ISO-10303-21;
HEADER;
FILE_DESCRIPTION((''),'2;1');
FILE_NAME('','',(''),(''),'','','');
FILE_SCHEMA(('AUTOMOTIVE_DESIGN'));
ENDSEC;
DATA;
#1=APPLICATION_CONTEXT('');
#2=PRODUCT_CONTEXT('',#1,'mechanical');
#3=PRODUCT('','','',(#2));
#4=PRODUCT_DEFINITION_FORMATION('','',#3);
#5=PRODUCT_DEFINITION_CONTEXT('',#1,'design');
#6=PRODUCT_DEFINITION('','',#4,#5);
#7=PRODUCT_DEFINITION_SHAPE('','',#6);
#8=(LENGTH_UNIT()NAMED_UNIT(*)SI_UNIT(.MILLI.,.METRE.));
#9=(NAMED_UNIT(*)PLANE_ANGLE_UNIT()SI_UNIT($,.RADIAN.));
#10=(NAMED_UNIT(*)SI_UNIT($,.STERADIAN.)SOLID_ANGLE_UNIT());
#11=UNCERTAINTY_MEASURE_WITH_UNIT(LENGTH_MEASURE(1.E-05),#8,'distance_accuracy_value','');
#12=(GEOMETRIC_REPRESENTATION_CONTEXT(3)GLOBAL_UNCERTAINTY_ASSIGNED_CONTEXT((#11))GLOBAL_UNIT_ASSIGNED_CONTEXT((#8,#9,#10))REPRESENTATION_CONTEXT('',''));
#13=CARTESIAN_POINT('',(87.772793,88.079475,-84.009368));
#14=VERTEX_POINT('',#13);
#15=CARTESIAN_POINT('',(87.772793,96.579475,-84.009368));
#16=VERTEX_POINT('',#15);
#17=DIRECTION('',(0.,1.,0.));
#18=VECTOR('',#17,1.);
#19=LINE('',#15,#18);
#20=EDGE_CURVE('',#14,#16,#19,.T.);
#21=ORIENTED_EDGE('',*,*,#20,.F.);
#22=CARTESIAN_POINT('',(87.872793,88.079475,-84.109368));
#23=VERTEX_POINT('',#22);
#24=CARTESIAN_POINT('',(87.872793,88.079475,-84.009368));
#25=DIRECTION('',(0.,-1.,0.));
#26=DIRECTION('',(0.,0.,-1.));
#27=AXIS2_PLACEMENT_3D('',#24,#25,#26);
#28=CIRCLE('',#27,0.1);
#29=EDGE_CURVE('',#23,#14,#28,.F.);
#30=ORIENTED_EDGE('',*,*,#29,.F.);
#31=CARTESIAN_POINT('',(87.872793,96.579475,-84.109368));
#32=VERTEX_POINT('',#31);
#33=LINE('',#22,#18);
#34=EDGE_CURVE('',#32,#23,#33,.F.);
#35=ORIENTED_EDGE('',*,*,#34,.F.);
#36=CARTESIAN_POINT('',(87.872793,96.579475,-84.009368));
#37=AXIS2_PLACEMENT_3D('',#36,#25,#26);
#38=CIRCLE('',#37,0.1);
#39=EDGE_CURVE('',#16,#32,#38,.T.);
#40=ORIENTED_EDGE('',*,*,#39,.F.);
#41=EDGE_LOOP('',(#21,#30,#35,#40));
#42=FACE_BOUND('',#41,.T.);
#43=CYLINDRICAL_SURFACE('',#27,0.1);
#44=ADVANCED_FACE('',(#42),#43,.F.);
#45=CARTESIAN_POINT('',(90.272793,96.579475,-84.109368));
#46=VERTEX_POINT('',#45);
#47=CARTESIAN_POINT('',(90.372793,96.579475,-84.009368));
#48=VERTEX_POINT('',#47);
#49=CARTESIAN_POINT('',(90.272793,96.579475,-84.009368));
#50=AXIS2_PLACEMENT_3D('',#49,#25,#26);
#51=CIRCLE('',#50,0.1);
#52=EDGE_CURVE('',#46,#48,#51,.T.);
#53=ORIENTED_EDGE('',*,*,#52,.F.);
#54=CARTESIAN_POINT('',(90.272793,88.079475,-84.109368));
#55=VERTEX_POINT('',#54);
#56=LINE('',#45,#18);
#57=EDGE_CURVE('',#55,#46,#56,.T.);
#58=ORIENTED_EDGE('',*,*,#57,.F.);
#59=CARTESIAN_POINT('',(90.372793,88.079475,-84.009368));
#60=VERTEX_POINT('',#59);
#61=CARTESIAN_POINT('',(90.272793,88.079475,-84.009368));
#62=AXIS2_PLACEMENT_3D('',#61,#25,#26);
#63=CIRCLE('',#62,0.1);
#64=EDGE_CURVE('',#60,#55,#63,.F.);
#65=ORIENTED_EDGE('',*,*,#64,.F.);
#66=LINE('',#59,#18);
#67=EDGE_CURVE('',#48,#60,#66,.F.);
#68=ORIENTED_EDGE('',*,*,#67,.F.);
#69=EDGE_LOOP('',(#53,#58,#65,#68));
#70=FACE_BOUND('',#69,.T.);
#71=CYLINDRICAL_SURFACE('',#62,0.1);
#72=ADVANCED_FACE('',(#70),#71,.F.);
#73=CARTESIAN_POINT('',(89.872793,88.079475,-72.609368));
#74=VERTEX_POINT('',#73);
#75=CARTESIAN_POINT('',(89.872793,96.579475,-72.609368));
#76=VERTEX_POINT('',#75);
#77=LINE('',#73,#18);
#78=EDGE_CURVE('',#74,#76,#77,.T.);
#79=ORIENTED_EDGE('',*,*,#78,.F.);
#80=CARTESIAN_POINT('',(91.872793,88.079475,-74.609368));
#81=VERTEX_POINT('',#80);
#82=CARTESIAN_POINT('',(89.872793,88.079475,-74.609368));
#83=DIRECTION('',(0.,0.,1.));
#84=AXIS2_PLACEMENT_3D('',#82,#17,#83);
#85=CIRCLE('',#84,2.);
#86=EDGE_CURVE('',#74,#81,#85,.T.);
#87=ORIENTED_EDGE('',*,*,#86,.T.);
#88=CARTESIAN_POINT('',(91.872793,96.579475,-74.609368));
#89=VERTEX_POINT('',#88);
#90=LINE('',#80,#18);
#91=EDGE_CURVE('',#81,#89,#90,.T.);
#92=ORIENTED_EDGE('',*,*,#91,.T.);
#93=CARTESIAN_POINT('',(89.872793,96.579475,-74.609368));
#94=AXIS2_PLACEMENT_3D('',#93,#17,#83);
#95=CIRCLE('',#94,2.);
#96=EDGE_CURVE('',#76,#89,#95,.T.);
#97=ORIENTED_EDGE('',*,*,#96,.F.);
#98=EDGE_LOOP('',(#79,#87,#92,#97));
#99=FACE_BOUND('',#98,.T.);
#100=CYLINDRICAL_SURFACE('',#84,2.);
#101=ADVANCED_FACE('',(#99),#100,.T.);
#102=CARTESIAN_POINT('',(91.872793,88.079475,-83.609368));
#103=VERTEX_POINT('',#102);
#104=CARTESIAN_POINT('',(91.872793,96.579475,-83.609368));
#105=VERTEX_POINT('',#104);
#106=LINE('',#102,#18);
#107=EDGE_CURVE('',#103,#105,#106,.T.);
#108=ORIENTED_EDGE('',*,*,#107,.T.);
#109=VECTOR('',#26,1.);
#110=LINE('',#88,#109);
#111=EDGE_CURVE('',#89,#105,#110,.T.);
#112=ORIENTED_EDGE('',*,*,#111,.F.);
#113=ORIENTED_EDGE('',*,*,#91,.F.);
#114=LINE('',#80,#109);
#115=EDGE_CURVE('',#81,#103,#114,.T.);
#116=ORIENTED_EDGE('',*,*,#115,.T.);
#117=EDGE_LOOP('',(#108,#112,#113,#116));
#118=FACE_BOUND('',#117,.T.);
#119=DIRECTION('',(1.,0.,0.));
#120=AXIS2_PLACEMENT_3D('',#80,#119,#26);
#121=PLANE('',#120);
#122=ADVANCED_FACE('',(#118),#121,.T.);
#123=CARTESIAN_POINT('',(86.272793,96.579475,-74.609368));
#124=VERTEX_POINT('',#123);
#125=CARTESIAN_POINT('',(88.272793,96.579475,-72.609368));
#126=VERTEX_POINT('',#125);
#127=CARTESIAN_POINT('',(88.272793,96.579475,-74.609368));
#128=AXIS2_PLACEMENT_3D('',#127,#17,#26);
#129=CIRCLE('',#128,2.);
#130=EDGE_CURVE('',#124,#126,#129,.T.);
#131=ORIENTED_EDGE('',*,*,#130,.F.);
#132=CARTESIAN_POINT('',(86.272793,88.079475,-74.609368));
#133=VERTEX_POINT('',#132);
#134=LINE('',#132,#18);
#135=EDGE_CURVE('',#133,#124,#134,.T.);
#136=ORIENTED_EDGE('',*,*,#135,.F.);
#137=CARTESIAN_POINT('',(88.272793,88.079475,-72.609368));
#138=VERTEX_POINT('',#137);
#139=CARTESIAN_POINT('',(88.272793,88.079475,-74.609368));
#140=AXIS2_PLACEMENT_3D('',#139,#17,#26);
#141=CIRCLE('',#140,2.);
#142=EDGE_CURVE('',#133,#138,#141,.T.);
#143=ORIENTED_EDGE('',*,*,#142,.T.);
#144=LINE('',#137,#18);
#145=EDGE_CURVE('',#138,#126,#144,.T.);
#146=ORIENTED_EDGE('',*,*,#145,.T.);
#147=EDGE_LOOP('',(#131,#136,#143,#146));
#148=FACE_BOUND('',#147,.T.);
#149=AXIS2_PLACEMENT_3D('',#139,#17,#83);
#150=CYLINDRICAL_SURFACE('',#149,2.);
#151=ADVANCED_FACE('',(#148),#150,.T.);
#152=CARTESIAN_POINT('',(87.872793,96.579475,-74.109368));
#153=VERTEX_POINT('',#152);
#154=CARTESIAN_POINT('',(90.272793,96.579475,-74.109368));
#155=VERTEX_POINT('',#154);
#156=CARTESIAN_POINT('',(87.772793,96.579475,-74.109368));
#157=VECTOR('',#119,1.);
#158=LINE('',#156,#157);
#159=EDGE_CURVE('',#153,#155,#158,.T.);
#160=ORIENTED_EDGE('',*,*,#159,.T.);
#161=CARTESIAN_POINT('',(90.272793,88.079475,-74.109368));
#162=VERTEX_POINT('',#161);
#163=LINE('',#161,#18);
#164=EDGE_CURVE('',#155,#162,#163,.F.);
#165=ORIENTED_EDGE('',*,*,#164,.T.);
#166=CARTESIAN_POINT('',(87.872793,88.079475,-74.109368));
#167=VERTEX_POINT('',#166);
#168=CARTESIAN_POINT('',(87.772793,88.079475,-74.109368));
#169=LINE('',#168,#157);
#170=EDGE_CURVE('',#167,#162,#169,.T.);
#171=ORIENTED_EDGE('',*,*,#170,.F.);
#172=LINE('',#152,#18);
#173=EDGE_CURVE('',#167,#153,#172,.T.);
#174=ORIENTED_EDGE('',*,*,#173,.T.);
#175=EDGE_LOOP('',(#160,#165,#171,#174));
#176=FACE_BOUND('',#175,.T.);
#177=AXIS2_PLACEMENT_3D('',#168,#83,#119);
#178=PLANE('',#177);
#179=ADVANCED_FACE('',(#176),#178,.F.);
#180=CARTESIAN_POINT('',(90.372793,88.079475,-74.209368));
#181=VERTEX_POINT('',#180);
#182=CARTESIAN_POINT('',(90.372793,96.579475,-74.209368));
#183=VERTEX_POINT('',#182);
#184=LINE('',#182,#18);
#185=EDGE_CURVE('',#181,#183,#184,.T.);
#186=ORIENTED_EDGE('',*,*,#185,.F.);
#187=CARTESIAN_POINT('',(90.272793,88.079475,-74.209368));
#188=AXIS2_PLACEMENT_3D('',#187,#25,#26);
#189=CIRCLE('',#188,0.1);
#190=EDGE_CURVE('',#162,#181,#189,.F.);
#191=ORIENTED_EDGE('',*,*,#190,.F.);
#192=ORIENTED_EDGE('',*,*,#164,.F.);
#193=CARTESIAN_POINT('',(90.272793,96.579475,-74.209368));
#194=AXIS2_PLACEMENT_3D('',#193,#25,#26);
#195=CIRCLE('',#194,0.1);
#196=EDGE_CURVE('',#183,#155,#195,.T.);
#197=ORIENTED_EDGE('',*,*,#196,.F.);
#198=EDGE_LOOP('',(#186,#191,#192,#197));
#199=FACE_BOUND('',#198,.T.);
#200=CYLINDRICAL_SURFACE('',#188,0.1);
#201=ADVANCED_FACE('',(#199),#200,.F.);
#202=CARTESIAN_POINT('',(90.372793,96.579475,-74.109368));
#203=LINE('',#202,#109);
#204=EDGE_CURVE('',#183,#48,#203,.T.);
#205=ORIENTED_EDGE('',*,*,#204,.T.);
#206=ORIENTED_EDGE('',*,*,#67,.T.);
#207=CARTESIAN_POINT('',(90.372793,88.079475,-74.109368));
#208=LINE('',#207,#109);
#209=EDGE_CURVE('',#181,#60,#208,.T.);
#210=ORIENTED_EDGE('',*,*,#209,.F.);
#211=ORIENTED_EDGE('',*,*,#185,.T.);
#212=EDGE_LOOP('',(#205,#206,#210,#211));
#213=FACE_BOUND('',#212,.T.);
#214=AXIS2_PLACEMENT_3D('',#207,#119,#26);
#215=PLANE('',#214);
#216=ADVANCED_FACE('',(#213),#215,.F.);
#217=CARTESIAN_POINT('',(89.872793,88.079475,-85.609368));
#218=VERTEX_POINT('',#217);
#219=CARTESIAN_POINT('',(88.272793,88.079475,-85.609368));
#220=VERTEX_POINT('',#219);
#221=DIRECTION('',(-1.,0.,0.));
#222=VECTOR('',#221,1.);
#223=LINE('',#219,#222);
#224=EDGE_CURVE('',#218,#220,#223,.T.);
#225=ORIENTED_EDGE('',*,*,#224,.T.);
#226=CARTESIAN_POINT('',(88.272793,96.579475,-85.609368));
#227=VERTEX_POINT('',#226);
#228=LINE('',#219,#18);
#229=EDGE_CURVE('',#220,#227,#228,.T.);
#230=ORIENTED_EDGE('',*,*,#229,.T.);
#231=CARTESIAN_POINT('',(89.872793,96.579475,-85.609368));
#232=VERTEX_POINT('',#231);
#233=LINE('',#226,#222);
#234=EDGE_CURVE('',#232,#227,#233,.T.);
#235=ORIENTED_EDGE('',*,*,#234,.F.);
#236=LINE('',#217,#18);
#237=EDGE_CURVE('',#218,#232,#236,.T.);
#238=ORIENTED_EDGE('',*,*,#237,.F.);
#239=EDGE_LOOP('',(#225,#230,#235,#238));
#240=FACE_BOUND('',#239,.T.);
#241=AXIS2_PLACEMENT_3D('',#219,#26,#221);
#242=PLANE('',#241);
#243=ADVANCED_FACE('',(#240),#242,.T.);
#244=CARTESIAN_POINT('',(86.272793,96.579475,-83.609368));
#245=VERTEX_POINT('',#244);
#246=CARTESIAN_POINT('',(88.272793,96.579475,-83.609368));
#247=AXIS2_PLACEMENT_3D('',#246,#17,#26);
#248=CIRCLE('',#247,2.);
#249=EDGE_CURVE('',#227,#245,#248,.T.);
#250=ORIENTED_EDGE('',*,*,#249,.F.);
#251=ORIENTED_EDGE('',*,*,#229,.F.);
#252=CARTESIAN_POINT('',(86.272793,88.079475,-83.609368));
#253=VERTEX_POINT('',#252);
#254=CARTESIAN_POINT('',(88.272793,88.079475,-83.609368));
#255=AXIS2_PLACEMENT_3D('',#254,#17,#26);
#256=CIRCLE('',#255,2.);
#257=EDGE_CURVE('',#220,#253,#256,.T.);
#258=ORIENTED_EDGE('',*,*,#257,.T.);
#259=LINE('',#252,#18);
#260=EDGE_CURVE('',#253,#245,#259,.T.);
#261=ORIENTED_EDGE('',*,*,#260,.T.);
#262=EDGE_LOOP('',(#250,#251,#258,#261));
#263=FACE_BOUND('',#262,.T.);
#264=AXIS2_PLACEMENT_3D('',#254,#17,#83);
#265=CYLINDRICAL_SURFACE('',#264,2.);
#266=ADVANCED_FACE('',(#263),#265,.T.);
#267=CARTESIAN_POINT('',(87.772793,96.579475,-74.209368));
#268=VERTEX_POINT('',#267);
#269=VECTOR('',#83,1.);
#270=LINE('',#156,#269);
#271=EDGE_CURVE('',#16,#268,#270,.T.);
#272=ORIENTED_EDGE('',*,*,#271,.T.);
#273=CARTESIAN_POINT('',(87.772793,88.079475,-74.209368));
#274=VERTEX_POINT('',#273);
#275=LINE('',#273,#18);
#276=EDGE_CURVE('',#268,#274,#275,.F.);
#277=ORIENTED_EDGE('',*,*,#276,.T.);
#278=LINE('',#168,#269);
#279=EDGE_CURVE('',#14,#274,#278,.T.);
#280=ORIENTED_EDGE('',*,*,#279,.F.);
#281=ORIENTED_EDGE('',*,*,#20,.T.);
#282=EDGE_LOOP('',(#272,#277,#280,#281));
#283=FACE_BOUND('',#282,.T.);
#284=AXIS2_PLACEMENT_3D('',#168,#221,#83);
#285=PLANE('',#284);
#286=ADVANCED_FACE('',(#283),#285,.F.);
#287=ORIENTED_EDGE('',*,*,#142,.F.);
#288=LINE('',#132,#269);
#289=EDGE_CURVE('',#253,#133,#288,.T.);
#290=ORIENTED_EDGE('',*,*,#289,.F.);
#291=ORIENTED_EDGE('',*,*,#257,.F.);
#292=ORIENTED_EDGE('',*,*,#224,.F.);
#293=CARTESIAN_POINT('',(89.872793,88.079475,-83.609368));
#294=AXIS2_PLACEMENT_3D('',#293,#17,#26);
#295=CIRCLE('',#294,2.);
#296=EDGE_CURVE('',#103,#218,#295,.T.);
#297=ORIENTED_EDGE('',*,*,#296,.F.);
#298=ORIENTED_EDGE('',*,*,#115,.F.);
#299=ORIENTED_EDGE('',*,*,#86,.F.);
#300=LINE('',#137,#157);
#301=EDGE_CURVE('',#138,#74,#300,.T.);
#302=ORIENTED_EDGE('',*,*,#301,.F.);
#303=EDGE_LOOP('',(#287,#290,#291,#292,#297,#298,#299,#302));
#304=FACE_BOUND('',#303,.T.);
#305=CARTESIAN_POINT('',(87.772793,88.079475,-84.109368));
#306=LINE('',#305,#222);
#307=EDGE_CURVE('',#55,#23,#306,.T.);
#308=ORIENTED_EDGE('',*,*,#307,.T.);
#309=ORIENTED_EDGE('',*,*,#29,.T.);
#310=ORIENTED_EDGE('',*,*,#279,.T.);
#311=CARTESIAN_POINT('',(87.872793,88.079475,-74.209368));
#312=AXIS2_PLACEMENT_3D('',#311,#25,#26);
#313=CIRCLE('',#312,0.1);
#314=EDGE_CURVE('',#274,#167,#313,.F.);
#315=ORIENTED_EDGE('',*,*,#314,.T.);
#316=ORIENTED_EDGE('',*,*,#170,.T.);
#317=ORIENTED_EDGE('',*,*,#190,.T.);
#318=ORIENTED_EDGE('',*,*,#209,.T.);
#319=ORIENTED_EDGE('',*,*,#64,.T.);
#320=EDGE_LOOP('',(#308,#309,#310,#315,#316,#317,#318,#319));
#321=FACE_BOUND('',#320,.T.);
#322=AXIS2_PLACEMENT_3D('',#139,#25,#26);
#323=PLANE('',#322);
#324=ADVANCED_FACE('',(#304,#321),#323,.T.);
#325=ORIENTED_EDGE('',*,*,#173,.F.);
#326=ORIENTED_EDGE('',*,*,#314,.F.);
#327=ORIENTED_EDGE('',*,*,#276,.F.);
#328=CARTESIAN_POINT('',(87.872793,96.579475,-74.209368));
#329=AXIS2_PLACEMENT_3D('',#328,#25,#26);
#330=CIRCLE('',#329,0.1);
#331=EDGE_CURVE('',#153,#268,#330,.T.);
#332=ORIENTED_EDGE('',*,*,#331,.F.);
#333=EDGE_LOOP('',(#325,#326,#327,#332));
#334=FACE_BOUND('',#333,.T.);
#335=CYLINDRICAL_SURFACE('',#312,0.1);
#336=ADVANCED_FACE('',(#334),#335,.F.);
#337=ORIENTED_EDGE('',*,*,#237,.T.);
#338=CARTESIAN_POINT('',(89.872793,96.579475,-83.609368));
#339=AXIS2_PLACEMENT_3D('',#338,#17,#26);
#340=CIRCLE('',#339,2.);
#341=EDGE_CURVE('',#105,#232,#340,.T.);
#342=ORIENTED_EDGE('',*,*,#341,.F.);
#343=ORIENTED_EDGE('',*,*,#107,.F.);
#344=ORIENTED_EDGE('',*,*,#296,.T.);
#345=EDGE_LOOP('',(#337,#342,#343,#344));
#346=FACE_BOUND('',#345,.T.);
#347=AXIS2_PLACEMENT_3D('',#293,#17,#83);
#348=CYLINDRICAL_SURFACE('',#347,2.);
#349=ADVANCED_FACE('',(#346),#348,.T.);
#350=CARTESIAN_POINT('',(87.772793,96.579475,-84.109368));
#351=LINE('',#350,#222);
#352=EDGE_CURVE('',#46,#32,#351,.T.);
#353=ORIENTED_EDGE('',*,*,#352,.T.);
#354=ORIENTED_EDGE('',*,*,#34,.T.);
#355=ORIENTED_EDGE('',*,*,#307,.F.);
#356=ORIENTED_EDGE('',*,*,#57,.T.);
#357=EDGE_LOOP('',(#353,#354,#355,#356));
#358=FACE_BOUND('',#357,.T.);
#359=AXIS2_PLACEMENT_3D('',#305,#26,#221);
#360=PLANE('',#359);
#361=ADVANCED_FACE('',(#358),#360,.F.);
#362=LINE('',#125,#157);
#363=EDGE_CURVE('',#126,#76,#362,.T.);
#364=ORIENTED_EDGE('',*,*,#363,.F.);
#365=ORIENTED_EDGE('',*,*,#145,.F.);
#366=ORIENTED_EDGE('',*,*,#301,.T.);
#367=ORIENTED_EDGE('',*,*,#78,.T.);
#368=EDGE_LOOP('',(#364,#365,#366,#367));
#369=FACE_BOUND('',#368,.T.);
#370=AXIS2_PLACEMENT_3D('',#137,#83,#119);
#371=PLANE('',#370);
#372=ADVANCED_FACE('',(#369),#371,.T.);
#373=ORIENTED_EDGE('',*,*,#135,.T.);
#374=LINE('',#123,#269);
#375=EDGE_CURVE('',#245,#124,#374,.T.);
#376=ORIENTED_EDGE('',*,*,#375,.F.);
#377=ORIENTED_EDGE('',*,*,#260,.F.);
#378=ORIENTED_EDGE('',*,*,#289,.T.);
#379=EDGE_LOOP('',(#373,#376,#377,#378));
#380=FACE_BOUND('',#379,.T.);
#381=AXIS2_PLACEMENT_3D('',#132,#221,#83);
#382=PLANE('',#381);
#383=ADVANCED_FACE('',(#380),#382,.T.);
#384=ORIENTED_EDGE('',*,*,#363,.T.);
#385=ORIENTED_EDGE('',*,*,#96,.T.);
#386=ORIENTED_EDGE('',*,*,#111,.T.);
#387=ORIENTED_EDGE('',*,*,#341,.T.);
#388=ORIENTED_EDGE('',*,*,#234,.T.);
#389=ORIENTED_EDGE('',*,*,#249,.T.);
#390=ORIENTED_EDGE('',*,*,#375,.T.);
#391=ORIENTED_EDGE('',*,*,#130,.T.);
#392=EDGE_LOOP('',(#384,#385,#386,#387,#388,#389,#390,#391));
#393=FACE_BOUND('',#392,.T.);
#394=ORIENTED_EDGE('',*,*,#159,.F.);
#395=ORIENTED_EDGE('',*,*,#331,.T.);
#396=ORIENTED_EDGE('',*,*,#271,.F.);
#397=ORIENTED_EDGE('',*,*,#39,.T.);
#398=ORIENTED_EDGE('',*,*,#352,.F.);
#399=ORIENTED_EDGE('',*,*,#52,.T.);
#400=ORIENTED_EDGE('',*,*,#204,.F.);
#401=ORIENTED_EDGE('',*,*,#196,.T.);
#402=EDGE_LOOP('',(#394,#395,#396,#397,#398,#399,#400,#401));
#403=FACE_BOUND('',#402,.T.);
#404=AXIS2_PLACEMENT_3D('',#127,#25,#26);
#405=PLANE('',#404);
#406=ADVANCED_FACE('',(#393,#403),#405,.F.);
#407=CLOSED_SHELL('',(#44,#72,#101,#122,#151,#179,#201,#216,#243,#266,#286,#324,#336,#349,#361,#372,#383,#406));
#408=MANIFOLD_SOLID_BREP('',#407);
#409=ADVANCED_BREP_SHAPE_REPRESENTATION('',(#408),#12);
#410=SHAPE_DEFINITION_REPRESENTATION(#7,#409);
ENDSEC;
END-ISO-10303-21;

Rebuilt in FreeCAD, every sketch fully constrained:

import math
import FreeCAD as App
import Part
import Sketcher

V = App.Vector
Q = App.Units.Quantity


def edges_at(feature, points):
    """Names of the edges that pass closest to the given points."""
    edges = feature.Shape.Edges
    near = lambda p: min(range(len(edges)), key=lambda i: edges[i].distToShape(Part.Vertex(*p))[0])
    return sorted({f"Edge{near(p) + 1}" for p in points})

doc = App.newDocument("Part")
body = doc.addObject("PartDesign::Body", "Body")

# Sketch on XZ plane
sketch1 = doc.addObject("Sketcher::SketchObject", "Sketch")
body.addObject(sketch1)
sketch1.AttachmentSupport = (doc.XZ_Plane, [""])
sketch1.MapMode = "FlatFace"
sketch1.AttachmentOffset = App.Placement(V(0, 0, -96.579475), App.Rotation())
sketch1.addGeometry([
    Part.LineSegment(V(88.3, -72.6, 0), V(89.9, -72.6, 0)),  # 0
    Part.ArcOfCircle(Part.Circle(V(89.9, -74.6, 0), V(0, 0, 1), 2), math.radians(0), math.radians(90)),  # 1
    Part.LineSegment(V(91.9, -74.6, 0), V(91.9, -83.6, 0)),  # 2
    Part.ArcOfCircle(Part.Circle(V(89.9, -83.6, 0), V(0, 0, 1), 2), math.radians(-90), math.radians(0)),  # 3
    Part.LineSegment(V(89.9, -85.6, 0), V(88.3, -85.6, 0)),  # 4
    Part.ArcOfCircle(Part.Circle(V(88.3, -83.6, 0), V(0, 0, 1), 2), math.radians(-180), math.radians(-90)),  # 5
    Part.LineSegment(V(86.3, -83.6, 0), V(86.3, -74.6, 0)),  # 6
    Part.ArcOfCircle(Part.Circle(V(88.3, -74.6, 0), V(0, 0, 1), 2), math.radians(90), math.radians(180)),  # 7
    Part.LineSegment(V(90.4, -74.1, 0), V(87.8, -74.1, 0)),  # 8
    Part.LineSegment(V(87.8, -74.1, 0), V(87.8, -84.1, 0)),  # 9
    Part.LineSegment(V(87.8, -84.1, 0), V(90.4, -84.1, 0)),  # 10
    Part.LineSegment(V(90.4, -84.1, 0), V(90.4, -74.1, 0)),  # 11
], False)
sketch1.addConstraint([
    Sketcher.Constraint("Tangent", 0, 2, 1, 2),
    Sketcher.Constraint("Tangent", 1, 1, 2, 1),
    Sketcher.Constraint("Tangent", 2, 2, 3, 2),
    Sketcher.Constraint("Tangent", 3, 1, 4, 1),
    Sketcher.Constraint("Tangent", 4, 2, 5, 2),
    Sketcher.Constraint("Tangent", 5, 1, 6, 1),
    Sketcher.Constraint("Tangent", 6, 2, 7, 2),
    Sketcher.Constraint("Tangent", 7, 1, 0, 1),
    Sketcher.Constraint("Coincident", 8, 2, 9, 1),
    Sketcher.Constraint("Coincident", 9, 2, 10, 1),
    Sketcher.Constraint("Coincident", 10, 2, 11, 1),
    Sketcher.Constraint("Coincident", 11, 2, 8, 1),
    Sketcher.Constraint("Horizontal", 0),
    Sketcher.Constraint("Vertical", 2),
    Sketcher.Constraint("Horizontal", 4),
    Sketcher.Constraint("Vertical", 6),
    Sketcher.Constraint("Horizontal", 8),
    Sketcher.Constraint("Vertical", 9),
    Sketcher.Constraint("Horizontal", 10),
    Sketcher.Constraint("Vertical", 11),
    Sketcher.Constraint("Equal", 1, 3),
    Sketcher.Constraint("Equal", 3, 5),
    Sketcher.Constraint("Equal", 5, 7),
    Sketcher.Constraint("Radius", 1, Q("2 mm")),
    Sketcher.Constraint("DistanceY", 2, 2, 2, 1, Q("9 mm")),
    Sketcher.Constraint("DistanceY", 9, 2, 9, 1, Q("10 mm")),
    Sketcher.Constraint("DistanceX", 0, 1, 0, 2, Q("1.6 mm")),
    Sketcher.Constraint("DistanceX", 8, 2, 8, 1, Q("2.6 mm")),
    Sketcher.Constraint("DistanceX", 8, 2, 7, 3, Q("0.5 mm")),
    Sketcher.Constraint("DistanceY", 7, 3, 8, 2, Q("0.5 mm")),
    Sketcher.Constraint("DistanceX", -1, 1, 1, 3, Q("89.872793 mm")),
    Sketcher.Constraint("DistanceY", 1, 3, -1, 1, Q("74.609368 mm")),
])
pad1 = doc.addObject("PartDesign::Pad", "Pad")
body.addObject(pad1)
pad1.Profile = sketch1
pad1.Length = 8.5
doc.recompute()

fillet = doc.addObject("PartDesign::Fillet", "Fillet")
body.addObject(fillet)
fillet.Base = (pad1, edges_at(pad1, [
    (90.373, 92.329, -84.109),
    (90.373, 92.329, -74.109),
    (87.773, 92.329, -74.109),
    (87.773, 92.329, -84.109),
]))
fillet.Radius = 0.1

doc.recompute()
